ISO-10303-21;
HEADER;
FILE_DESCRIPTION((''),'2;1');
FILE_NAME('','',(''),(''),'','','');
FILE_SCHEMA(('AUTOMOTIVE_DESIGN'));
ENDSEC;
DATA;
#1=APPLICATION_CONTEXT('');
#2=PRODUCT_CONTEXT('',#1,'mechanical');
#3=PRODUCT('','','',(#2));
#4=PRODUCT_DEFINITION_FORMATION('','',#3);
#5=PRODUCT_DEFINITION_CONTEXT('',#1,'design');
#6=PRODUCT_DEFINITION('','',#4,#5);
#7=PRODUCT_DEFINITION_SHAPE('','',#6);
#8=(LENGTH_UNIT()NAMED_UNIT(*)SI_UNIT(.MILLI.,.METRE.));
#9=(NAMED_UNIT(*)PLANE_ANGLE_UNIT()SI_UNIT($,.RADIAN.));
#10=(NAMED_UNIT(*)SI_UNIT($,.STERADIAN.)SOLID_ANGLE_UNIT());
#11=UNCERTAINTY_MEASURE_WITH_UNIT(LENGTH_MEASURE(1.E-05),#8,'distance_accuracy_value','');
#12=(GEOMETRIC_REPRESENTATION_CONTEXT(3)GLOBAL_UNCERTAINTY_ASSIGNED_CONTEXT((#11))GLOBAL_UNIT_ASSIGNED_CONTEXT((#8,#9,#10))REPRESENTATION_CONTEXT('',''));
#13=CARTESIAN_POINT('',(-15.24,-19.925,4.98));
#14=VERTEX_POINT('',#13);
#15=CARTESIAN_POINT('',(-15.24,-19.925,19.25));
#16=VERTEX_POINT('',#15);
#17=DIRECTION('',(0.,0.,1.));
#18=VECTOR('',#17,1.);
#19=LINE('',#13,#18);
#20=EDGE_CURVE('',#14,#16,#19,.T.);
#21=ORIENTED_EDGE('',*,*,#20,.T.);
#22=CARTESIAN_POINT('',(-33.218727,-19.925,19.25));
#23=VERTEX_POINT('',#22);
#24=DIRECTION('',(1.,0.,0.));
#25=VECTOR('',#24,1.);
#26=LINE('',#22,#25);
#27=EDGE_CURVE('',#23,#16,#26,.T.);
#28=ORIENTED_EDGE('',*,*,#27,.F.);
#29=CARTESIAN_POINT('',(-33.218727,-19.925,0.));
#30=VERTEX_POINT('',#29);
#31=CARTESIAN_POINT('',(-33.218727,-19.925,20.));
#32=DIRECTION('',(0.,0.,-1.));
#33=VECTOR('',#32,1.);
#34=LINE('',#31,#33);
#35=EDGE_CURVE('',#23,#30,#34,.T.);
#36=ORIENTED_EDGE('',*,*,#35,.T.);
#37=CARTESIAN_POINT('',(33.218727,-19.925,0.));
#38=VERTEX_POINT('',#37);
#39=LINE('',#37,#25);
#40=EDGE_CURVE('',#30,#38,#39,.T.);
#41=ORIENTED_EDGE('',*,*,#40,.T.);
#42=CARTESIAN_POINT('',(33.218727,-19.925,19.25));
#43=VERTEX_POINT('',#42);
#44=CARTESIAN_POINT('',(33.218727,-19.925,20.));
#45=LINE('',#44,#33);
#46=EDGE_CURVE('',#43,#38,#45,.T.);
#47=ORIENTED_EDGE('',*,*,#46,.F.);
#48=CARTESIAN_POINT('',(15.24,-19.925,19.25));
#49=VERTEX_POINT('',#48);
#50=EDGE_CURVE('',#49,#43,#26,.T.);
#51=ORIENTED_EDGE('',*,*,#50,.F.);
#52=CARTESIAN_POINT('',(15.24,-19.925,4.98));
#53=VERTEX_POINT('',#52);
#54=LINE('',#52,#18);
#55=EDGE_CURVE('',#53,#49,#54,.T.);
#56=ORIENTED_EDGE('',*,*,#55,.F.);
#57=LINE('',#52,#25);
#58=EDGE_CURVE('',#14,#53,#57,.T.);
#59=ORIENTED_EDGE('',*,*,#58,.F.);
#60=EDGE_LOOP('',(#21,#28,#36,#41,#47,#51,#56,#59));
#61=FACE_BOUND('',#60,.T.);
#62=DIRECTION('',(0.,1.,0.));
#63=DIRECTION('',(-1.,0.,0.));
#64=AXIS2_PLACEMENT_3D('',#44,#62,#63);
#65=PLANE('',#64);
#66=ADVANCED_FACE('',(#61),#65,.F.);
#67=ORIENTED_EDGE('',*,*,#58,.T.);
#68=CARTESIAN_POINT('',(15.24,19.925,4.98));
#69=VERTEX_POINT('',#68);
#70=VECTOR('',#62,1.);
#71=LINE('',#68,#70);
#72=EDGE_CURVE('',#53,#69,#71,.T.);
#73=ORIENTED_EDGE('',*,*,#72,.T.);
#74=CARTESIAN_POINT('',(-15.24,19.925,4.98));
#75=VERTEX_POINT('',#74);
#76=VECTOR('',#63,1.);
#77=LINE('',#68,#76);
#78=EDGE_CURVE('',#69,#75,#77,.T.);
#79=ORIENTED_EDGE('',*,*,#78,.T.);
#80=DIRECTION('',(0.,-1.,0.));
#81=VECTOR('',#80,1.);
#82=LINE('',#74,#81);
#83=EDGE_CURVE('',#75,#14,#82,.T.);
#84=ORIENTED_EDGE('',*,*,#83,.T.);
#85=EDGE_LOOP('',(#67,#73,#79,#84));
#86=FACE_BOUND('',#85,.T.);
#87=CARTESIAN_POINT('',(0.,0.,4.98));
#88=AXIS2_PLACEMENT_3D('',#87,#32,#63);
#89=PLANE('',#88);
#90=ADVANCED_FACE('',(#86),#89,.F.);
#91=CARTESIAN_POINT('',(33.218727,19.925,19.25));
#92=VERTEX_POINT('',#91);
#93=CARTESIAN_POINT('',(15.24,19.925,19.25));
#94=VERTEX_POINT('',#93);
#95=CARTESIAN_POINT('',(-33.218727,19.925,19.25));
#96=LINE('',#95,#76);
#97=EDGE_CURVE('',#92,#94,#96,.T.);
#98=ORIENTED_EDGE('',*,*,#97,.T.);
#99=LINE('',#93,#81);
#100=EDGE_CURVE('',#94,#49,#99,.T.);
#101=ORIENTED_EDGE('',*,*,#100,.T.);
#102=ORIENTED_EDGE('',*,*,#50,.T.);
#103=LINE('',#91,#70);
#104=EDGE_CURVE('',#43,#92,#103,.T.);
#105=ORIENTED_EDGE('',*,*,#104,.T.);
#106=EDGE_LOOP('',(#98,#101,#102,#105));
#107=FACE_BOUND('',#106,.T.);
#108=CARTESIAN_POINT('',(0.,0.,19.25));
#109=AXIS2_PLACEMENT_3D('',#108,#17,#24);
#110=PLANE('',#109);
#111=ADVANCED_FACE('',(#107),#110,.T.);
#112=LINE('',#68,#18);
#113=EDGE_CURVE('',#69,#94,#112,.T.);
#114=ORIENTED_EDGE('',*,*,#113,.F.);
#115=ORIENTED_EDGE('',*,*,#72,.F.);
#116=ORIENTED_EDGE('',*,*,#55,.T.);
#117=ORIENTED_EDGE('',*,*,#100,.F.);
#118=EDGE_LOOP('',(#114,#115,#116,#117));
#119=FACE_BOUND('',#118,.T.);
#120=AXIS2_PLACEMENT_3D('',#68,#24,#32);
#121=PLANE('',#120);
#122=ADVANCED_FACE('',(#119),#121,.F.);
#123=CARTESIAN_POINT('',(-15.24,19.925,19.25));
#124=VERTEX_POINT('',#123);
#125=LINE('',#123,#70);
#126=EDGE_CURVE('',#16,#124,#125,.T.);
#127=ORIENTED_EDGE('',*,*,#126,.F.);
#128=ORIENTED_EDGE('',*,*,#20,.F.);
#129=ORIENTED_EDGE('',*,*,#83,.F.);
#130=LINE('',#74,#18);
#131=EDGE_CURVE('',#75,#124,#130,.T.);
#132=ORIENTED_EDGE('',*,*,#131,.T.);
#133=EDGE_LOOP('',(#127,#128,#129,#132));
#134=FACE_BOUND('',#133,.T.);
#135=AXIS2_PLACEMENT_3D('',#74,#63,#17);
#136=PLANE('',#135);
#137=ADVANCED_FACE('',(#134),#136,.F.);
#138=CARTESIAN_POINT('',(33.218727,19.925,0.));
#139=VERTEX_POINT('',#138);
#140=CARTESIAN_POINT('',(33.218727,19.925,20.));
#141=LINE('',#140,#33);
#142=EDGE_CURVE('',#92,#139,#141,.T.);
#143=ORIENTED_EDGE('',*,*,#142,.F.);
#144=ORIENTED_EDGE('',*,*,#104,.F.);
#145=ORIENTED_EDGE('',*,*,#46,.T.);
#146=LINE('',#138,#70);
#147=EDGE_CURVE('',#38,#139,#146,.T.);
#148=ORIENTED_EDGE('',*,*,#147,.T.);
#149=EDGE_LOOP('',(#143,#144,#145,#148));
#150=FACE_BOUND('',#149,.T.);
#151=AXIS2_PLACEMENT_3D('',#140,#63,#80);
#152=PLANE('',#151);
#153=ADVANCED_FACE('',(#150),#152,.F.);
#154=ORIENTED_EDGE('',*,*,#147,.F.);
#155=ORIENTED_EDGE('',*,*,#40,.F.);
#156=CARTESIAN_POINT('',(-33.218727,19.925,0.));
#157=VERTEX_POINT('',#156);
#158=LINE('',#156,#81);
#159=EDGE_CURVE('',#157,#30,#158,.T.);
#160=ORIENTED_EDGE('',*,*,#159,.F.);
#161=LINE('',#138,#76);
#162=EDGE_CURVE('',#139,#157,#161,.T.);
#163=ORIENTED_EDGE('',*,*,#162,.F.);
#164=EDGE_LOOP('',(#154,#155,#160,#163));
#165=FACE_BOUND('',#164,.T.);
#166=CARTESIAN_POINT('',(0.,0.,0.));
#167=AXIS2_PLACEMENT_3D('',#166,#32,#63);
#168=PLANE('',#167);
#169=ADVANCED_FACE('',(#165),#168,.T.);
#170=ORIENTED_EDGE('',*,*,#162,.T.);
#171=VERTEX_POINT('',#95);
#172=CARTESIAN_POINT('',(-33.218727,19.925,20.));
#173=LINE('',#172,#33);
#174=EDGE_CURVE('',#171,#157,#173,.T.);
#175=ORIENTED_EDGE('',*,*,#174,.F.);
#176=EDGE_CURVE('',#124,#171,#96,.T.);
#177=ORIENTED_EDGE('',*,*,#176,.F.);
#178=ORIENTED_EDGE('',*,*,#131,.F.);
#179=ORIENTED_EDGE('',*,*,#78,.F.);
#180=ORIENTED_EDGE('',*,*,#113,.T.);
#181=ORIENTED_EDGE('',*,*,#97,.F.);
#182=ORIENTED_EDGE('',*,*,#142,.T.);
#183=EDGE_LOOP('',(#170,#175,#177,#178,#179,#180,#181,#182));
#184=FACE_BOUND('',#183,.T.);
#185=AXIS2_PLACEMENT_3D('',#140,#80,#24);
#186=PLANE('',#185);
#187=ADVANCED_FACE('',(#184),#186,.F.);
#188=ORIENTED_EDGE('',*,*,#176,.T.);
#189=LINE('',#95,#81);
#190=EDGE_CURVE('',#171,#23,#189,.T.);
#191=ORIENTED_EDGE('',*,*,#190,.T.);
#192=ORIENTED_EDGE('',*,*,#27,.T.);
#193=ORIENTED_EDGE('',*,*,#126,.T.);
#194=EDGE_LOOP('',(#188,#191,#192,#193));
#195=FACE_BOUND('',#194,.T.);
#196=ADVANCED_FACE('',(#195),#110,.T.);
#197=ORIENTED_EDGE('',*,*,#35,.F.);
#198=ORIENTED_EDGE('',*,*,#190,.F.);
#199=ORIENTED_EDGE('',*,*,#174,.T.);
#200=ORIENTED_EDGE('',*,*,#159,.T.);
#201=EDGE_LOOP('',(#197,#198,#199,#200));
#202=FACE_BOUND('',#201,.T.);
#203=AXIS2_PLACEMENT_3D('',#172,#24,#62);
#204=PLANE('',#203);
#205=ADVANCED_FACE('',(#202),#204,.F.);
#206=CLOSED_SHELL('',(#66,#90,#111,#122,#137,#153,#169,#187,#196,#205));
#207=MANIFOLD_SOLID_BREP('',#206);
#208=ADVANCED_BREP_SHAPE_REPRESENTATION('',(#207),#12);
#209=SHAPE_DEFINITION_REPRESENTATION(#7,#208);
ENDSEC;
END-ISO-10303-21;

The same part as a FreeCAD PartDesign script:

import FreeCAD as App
import Part
import Sketcher
from FreeCAD import Vector


def add_polygon(sketch, points):
    """Adds a closed chain of lines whose ends are joined by coincident constraints."""
    first, n = sketch.GeometryCount, len(points)
    for a, b in zip(points, points[1:] + points[:1]):
        sketch.addGeometry(Part.LineSegment(App.Vector(*a, 0), App.Vector(*b, 0)), False)
    for i in range(n):
        sketch.addConstraint(Sketcher.Constraint("Coincident", first + i, 2, first + (i + 1) % n, 1))

doc = App.newDocument("Part")
body = doc.addObject("PartDesign::Body", "Body")

sketch1 = doc.addObject("Sketcher::SketchObject", "Sketch")
body.addObject(sketch1)
sketch1.AttachmentSupport = (doc.XY_Plane, [""])
sketch1.MapMode = "FlatFace"
add_polygon(sketch1, [(-33, 20), (-33, -20), (33, -20), (33, 20)])
sketch1.addConstraint([
    Sketcher.Constraint("Vertical", 0),
    Sketcher.Constraint("Horizontal", 1),
    Sketcher.Constraint("Vertical", 2),
    Sketcher.Constraint("Horizontal", 3),
    Sketcher.Constraint("Symmetric", 0, 2, 2, 2, -1, 1),
    Sketcher.Constraint("DistanceY", 0, 2, 0, 1, 39.85),
    Sketcher.Constraint("DistanceX", 1, 1, 1, 2, 66.437454),
])
pad1 = doc.addObject("PartDesign::Pad", "Pad")
body.addObject(pad1)
pad1.Profile = sketch1
pad1.Length = 20

sketch2 = doc.addObject("Sketcher::SketchObject", "Sketch001")
body.addObject(sketch2)
sketch2.AttachmentSupport = (doc.XY_Plane, [""])
sketch2.MapMode = "FlatFace"
sketch2.AttachmentOffset = App.Placement(Vector(0, 0, 20), App.Rotation())
add_polygon(sketch2, [(-15, 20), (-15, -20), (15, -20), (15, 20)])
sketch2.addConstraint([
    Sketcher.Constraint("Vertical", 0),
    Sketcher.Constraint("Horizontal", 1),
    Sketcher.Constraint("Vertical", 2),
    Sketcher.Constraint("Horizontal", 3),
    Sketcher.Constraint("Symmetric", 0, 2, 2, 2, -1, 1),
    Sketcher.Constraint("DistanceX", 1, 1, 1, 2, 30.48),
    Sketcher.Constraint("DistanceY", 0, 2, 0, 1, 39.85),
])
pocket1 = doc.addObject("PartDesign::Pocket", "Pocket")
body.addObject(pocket1)
pocket1.Profile = sketch2
pocket1.Length = 15.02

sketch3 = doc.addObject("Sketcher::SketchObject", "Sketch002")
body.addObject(sketch3)
sketch3.AttachmentSupport = (doc.XY_Plane, [""])
sketch3.MapMode = "FlatFace"
sketch3.AttachmentOffset = App.Placement(Vector(0, 0, 20), App.Rotation())
add_polygon(sketch3, [(-33, 20), (-33, -20), (33, -20), (33, 20)])
sketch3.addConstraint([
    Sketcher.Constraint("Vertical", 0),
    Sketcher.Constraint("Horizontal", 1),
    Sketcher.Constraint("Vertical", 2),
    Sketcher.Constraint("Horizontal", 3),
    Sketcher.Constraint("Symmetric", 0, 2, 2, 2, -1, 1),
    Sketcher.Constraint("DistanceY", 0, 2, 0, 1, 39.85),
    Sketcher.Constraint("DistanceX", 1, 1, 1, 2, 66.437454),
])
pocket2 = doc.addObject("PartDesign::Pocket", "Pocket001")
body.addObject(pocket2)
pocket2.Profile = sketch3
pocket2.Length = 0.75

doc.recompute()
